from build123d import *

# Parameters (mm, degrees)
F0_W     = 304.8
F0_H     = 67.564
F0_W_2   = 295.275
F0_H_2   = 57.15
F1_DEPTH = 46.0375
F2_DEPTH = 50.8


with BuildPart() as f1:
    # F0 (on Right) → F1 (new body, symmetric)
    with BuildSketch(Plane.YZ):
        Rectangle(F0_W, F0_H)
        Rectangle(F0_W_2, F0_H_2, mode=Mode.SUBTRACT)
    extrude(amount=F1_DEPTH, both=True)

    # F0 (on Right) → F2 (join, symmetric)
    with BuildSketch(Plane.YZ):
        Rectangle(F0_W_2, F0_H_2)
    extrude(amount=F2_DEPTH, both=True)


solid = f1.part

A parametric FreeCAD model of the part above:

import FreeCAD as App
import Part
import Sketcher
from FreeCAD import Vector
Q = App.Units.Quantity

doc = App.newDocument("Part")
body = doc.addObject("PartDesign::Body", "Body")

sketch1 = doc.addObject("Sketcher::SketchObject", "Sketch")
body.addObject(sketch1)
sketch1.AttachmentSupport = (doc.YZ_Plane, [""])
sketch1.MapMode = "FlatFace"
sketch1.addGeometry([
    Part.LineSegment(Vector(-152, 34, 0), Vector(-152, -34, 0)),
    Part.LineSegment(Vector(-152, -34, 0), Vector(152, -34, 0)),
    Part.LineSegment(Vector(152, -34, 0), Vector(152, 34, 0)),
    Part.LineSegment(Vector(152, 34, 0), Vector(-152, 34, 0)),
    Part.LineSegment(Vector(148, -29, 0), Vector(-148, -29, 0)),
    Part.LineSegment(Vector(-148, -29, 0), Vector(-148, 29, 0)),
    Part.LineSegment(Vector(-148, 29, 0), Vector(148, 29, 0)),
    Part.LineSegment(Vector(148, 29, 0), Vector(148, -29, 0)),
], False)
sketch1.addConstraint([
    Sketcher.Constraint("Coincident", 0, 2, 1, 1),
    Sketcher.Constraint("Coincident", 1, 2, 2, 1),
    Sketcher.Constraint("Coincident", 2, 2, 3, 1),
    Sketcher.Constraint("Coincident", 3, 2, 0, 1),
    Sketcher.Constraint("Coincident", 4, 2, 5, 1),
    Sketcher.Constraint("Coincident", 5, 2, 6, 1),
    Sketcher.Constraint("Coincident", 6, 2, 7, 1),
    Sketcher.Constraint("Coincident", 7, 2, 4, 1),
    Sketcher.Constraint("Vertical", 0),
    Sketcher.Constraint("Horizontal", 1),
    Sketcher.Constraint("Vertical", 2),
    Sketcher.Constraint("Horizontal", 3),
    Sketcher.Constraint("Horizontal", 4),
    Sketcher.Constraint("Vertical", 5),
    Sketcher.Constraint("Horizontal", 6),
    Sketcher.Constraint("Vertical", 7),
    Sketcher.Constraint("Symmetric", 0, 2, 2, 2, -1, 1),
    Sketcher.Constraint("Symmetric", 4, 2, 6, 2, -1, 1),
    Sketcher.Constraint("DistanceX", 1, 1, 1, 2, Q("12 in")),
    Sketcher.Constraint("DistanceY", 0, 2, 0, 1, Q("2.66 in")),
    Sketcher.Constraint("DistanceY", 5, 1, 5, 2, Q("2.25 in")),
    Sketcher.Constraint("DistanceX", 4, 2, 4, 1, Q("11.625 in")),
])
pad1 = doc.addObject("PartDesign::Pad", "Pad")
body.addObject(pad1)
pad1.Profile = sketch1
pad1.Length = Q("3.625 in")
pad1.Midplane = True

sketch2 = doc.addObject("Sketcher::SketchObject", "Sketch001")
body.addObject(sketch2)
sketch2.AttachmentSupport = (doc.YZ_Plane, [""])
sketch2.MapMode = "FlatFace"
sketch2.addGeometry([
    Part.LineSegment(Vector(-148, 29, 0), Vector(-148, -29, 0)),
    Part.LineSegment(Vector(-148, -29, 0), Vector(148, -29, 0)),
    Part.LineSegment(Vector(148, -29, 0), Vector(148, 29, 0)),
    Part.LineSegment(Vector(148, 29, 0), Vector(-148, 29, 0)),
], False)
sketch2.addConstraint([
    Sketcher.Constraint("Coincident", 0, 2, 1, 1),
    Sketcher.Constraint("Coincident", 1, 2, 2, 1),
    Sketcher.Constraint("Coincident", 2, 2, 3, 1),
    Sketcher.Constraint("Coincident", 3, 2, 0, 1),
    Sketcher.Constraint("Vertical", 0),
    Sketcher.Constraint("Horizontal", 1),
    Sketcher.Constraint("Vertical", 2),
    Sketcher.Constraint("Horizontal", 3),
    Sketcher.Constraint("Symmetric", 0, 2, 2, 2, -1, 1),
    Sketcher.Constraint("DistanceY", 0, 2, 0, 1, Q("2.25 in")),
    Sketcher.Constraint("DistanceX", 1, 1, 1, 2, Q("11.625 in")),
])
pad2 = doc.addObject("PartDesign::Pad", "Pad001")
body.addObject(pad2)
pad2.Profile = sketch2
pad2.Length = Q("4 in")
pad2.Midplane = True

doc.recompute()
